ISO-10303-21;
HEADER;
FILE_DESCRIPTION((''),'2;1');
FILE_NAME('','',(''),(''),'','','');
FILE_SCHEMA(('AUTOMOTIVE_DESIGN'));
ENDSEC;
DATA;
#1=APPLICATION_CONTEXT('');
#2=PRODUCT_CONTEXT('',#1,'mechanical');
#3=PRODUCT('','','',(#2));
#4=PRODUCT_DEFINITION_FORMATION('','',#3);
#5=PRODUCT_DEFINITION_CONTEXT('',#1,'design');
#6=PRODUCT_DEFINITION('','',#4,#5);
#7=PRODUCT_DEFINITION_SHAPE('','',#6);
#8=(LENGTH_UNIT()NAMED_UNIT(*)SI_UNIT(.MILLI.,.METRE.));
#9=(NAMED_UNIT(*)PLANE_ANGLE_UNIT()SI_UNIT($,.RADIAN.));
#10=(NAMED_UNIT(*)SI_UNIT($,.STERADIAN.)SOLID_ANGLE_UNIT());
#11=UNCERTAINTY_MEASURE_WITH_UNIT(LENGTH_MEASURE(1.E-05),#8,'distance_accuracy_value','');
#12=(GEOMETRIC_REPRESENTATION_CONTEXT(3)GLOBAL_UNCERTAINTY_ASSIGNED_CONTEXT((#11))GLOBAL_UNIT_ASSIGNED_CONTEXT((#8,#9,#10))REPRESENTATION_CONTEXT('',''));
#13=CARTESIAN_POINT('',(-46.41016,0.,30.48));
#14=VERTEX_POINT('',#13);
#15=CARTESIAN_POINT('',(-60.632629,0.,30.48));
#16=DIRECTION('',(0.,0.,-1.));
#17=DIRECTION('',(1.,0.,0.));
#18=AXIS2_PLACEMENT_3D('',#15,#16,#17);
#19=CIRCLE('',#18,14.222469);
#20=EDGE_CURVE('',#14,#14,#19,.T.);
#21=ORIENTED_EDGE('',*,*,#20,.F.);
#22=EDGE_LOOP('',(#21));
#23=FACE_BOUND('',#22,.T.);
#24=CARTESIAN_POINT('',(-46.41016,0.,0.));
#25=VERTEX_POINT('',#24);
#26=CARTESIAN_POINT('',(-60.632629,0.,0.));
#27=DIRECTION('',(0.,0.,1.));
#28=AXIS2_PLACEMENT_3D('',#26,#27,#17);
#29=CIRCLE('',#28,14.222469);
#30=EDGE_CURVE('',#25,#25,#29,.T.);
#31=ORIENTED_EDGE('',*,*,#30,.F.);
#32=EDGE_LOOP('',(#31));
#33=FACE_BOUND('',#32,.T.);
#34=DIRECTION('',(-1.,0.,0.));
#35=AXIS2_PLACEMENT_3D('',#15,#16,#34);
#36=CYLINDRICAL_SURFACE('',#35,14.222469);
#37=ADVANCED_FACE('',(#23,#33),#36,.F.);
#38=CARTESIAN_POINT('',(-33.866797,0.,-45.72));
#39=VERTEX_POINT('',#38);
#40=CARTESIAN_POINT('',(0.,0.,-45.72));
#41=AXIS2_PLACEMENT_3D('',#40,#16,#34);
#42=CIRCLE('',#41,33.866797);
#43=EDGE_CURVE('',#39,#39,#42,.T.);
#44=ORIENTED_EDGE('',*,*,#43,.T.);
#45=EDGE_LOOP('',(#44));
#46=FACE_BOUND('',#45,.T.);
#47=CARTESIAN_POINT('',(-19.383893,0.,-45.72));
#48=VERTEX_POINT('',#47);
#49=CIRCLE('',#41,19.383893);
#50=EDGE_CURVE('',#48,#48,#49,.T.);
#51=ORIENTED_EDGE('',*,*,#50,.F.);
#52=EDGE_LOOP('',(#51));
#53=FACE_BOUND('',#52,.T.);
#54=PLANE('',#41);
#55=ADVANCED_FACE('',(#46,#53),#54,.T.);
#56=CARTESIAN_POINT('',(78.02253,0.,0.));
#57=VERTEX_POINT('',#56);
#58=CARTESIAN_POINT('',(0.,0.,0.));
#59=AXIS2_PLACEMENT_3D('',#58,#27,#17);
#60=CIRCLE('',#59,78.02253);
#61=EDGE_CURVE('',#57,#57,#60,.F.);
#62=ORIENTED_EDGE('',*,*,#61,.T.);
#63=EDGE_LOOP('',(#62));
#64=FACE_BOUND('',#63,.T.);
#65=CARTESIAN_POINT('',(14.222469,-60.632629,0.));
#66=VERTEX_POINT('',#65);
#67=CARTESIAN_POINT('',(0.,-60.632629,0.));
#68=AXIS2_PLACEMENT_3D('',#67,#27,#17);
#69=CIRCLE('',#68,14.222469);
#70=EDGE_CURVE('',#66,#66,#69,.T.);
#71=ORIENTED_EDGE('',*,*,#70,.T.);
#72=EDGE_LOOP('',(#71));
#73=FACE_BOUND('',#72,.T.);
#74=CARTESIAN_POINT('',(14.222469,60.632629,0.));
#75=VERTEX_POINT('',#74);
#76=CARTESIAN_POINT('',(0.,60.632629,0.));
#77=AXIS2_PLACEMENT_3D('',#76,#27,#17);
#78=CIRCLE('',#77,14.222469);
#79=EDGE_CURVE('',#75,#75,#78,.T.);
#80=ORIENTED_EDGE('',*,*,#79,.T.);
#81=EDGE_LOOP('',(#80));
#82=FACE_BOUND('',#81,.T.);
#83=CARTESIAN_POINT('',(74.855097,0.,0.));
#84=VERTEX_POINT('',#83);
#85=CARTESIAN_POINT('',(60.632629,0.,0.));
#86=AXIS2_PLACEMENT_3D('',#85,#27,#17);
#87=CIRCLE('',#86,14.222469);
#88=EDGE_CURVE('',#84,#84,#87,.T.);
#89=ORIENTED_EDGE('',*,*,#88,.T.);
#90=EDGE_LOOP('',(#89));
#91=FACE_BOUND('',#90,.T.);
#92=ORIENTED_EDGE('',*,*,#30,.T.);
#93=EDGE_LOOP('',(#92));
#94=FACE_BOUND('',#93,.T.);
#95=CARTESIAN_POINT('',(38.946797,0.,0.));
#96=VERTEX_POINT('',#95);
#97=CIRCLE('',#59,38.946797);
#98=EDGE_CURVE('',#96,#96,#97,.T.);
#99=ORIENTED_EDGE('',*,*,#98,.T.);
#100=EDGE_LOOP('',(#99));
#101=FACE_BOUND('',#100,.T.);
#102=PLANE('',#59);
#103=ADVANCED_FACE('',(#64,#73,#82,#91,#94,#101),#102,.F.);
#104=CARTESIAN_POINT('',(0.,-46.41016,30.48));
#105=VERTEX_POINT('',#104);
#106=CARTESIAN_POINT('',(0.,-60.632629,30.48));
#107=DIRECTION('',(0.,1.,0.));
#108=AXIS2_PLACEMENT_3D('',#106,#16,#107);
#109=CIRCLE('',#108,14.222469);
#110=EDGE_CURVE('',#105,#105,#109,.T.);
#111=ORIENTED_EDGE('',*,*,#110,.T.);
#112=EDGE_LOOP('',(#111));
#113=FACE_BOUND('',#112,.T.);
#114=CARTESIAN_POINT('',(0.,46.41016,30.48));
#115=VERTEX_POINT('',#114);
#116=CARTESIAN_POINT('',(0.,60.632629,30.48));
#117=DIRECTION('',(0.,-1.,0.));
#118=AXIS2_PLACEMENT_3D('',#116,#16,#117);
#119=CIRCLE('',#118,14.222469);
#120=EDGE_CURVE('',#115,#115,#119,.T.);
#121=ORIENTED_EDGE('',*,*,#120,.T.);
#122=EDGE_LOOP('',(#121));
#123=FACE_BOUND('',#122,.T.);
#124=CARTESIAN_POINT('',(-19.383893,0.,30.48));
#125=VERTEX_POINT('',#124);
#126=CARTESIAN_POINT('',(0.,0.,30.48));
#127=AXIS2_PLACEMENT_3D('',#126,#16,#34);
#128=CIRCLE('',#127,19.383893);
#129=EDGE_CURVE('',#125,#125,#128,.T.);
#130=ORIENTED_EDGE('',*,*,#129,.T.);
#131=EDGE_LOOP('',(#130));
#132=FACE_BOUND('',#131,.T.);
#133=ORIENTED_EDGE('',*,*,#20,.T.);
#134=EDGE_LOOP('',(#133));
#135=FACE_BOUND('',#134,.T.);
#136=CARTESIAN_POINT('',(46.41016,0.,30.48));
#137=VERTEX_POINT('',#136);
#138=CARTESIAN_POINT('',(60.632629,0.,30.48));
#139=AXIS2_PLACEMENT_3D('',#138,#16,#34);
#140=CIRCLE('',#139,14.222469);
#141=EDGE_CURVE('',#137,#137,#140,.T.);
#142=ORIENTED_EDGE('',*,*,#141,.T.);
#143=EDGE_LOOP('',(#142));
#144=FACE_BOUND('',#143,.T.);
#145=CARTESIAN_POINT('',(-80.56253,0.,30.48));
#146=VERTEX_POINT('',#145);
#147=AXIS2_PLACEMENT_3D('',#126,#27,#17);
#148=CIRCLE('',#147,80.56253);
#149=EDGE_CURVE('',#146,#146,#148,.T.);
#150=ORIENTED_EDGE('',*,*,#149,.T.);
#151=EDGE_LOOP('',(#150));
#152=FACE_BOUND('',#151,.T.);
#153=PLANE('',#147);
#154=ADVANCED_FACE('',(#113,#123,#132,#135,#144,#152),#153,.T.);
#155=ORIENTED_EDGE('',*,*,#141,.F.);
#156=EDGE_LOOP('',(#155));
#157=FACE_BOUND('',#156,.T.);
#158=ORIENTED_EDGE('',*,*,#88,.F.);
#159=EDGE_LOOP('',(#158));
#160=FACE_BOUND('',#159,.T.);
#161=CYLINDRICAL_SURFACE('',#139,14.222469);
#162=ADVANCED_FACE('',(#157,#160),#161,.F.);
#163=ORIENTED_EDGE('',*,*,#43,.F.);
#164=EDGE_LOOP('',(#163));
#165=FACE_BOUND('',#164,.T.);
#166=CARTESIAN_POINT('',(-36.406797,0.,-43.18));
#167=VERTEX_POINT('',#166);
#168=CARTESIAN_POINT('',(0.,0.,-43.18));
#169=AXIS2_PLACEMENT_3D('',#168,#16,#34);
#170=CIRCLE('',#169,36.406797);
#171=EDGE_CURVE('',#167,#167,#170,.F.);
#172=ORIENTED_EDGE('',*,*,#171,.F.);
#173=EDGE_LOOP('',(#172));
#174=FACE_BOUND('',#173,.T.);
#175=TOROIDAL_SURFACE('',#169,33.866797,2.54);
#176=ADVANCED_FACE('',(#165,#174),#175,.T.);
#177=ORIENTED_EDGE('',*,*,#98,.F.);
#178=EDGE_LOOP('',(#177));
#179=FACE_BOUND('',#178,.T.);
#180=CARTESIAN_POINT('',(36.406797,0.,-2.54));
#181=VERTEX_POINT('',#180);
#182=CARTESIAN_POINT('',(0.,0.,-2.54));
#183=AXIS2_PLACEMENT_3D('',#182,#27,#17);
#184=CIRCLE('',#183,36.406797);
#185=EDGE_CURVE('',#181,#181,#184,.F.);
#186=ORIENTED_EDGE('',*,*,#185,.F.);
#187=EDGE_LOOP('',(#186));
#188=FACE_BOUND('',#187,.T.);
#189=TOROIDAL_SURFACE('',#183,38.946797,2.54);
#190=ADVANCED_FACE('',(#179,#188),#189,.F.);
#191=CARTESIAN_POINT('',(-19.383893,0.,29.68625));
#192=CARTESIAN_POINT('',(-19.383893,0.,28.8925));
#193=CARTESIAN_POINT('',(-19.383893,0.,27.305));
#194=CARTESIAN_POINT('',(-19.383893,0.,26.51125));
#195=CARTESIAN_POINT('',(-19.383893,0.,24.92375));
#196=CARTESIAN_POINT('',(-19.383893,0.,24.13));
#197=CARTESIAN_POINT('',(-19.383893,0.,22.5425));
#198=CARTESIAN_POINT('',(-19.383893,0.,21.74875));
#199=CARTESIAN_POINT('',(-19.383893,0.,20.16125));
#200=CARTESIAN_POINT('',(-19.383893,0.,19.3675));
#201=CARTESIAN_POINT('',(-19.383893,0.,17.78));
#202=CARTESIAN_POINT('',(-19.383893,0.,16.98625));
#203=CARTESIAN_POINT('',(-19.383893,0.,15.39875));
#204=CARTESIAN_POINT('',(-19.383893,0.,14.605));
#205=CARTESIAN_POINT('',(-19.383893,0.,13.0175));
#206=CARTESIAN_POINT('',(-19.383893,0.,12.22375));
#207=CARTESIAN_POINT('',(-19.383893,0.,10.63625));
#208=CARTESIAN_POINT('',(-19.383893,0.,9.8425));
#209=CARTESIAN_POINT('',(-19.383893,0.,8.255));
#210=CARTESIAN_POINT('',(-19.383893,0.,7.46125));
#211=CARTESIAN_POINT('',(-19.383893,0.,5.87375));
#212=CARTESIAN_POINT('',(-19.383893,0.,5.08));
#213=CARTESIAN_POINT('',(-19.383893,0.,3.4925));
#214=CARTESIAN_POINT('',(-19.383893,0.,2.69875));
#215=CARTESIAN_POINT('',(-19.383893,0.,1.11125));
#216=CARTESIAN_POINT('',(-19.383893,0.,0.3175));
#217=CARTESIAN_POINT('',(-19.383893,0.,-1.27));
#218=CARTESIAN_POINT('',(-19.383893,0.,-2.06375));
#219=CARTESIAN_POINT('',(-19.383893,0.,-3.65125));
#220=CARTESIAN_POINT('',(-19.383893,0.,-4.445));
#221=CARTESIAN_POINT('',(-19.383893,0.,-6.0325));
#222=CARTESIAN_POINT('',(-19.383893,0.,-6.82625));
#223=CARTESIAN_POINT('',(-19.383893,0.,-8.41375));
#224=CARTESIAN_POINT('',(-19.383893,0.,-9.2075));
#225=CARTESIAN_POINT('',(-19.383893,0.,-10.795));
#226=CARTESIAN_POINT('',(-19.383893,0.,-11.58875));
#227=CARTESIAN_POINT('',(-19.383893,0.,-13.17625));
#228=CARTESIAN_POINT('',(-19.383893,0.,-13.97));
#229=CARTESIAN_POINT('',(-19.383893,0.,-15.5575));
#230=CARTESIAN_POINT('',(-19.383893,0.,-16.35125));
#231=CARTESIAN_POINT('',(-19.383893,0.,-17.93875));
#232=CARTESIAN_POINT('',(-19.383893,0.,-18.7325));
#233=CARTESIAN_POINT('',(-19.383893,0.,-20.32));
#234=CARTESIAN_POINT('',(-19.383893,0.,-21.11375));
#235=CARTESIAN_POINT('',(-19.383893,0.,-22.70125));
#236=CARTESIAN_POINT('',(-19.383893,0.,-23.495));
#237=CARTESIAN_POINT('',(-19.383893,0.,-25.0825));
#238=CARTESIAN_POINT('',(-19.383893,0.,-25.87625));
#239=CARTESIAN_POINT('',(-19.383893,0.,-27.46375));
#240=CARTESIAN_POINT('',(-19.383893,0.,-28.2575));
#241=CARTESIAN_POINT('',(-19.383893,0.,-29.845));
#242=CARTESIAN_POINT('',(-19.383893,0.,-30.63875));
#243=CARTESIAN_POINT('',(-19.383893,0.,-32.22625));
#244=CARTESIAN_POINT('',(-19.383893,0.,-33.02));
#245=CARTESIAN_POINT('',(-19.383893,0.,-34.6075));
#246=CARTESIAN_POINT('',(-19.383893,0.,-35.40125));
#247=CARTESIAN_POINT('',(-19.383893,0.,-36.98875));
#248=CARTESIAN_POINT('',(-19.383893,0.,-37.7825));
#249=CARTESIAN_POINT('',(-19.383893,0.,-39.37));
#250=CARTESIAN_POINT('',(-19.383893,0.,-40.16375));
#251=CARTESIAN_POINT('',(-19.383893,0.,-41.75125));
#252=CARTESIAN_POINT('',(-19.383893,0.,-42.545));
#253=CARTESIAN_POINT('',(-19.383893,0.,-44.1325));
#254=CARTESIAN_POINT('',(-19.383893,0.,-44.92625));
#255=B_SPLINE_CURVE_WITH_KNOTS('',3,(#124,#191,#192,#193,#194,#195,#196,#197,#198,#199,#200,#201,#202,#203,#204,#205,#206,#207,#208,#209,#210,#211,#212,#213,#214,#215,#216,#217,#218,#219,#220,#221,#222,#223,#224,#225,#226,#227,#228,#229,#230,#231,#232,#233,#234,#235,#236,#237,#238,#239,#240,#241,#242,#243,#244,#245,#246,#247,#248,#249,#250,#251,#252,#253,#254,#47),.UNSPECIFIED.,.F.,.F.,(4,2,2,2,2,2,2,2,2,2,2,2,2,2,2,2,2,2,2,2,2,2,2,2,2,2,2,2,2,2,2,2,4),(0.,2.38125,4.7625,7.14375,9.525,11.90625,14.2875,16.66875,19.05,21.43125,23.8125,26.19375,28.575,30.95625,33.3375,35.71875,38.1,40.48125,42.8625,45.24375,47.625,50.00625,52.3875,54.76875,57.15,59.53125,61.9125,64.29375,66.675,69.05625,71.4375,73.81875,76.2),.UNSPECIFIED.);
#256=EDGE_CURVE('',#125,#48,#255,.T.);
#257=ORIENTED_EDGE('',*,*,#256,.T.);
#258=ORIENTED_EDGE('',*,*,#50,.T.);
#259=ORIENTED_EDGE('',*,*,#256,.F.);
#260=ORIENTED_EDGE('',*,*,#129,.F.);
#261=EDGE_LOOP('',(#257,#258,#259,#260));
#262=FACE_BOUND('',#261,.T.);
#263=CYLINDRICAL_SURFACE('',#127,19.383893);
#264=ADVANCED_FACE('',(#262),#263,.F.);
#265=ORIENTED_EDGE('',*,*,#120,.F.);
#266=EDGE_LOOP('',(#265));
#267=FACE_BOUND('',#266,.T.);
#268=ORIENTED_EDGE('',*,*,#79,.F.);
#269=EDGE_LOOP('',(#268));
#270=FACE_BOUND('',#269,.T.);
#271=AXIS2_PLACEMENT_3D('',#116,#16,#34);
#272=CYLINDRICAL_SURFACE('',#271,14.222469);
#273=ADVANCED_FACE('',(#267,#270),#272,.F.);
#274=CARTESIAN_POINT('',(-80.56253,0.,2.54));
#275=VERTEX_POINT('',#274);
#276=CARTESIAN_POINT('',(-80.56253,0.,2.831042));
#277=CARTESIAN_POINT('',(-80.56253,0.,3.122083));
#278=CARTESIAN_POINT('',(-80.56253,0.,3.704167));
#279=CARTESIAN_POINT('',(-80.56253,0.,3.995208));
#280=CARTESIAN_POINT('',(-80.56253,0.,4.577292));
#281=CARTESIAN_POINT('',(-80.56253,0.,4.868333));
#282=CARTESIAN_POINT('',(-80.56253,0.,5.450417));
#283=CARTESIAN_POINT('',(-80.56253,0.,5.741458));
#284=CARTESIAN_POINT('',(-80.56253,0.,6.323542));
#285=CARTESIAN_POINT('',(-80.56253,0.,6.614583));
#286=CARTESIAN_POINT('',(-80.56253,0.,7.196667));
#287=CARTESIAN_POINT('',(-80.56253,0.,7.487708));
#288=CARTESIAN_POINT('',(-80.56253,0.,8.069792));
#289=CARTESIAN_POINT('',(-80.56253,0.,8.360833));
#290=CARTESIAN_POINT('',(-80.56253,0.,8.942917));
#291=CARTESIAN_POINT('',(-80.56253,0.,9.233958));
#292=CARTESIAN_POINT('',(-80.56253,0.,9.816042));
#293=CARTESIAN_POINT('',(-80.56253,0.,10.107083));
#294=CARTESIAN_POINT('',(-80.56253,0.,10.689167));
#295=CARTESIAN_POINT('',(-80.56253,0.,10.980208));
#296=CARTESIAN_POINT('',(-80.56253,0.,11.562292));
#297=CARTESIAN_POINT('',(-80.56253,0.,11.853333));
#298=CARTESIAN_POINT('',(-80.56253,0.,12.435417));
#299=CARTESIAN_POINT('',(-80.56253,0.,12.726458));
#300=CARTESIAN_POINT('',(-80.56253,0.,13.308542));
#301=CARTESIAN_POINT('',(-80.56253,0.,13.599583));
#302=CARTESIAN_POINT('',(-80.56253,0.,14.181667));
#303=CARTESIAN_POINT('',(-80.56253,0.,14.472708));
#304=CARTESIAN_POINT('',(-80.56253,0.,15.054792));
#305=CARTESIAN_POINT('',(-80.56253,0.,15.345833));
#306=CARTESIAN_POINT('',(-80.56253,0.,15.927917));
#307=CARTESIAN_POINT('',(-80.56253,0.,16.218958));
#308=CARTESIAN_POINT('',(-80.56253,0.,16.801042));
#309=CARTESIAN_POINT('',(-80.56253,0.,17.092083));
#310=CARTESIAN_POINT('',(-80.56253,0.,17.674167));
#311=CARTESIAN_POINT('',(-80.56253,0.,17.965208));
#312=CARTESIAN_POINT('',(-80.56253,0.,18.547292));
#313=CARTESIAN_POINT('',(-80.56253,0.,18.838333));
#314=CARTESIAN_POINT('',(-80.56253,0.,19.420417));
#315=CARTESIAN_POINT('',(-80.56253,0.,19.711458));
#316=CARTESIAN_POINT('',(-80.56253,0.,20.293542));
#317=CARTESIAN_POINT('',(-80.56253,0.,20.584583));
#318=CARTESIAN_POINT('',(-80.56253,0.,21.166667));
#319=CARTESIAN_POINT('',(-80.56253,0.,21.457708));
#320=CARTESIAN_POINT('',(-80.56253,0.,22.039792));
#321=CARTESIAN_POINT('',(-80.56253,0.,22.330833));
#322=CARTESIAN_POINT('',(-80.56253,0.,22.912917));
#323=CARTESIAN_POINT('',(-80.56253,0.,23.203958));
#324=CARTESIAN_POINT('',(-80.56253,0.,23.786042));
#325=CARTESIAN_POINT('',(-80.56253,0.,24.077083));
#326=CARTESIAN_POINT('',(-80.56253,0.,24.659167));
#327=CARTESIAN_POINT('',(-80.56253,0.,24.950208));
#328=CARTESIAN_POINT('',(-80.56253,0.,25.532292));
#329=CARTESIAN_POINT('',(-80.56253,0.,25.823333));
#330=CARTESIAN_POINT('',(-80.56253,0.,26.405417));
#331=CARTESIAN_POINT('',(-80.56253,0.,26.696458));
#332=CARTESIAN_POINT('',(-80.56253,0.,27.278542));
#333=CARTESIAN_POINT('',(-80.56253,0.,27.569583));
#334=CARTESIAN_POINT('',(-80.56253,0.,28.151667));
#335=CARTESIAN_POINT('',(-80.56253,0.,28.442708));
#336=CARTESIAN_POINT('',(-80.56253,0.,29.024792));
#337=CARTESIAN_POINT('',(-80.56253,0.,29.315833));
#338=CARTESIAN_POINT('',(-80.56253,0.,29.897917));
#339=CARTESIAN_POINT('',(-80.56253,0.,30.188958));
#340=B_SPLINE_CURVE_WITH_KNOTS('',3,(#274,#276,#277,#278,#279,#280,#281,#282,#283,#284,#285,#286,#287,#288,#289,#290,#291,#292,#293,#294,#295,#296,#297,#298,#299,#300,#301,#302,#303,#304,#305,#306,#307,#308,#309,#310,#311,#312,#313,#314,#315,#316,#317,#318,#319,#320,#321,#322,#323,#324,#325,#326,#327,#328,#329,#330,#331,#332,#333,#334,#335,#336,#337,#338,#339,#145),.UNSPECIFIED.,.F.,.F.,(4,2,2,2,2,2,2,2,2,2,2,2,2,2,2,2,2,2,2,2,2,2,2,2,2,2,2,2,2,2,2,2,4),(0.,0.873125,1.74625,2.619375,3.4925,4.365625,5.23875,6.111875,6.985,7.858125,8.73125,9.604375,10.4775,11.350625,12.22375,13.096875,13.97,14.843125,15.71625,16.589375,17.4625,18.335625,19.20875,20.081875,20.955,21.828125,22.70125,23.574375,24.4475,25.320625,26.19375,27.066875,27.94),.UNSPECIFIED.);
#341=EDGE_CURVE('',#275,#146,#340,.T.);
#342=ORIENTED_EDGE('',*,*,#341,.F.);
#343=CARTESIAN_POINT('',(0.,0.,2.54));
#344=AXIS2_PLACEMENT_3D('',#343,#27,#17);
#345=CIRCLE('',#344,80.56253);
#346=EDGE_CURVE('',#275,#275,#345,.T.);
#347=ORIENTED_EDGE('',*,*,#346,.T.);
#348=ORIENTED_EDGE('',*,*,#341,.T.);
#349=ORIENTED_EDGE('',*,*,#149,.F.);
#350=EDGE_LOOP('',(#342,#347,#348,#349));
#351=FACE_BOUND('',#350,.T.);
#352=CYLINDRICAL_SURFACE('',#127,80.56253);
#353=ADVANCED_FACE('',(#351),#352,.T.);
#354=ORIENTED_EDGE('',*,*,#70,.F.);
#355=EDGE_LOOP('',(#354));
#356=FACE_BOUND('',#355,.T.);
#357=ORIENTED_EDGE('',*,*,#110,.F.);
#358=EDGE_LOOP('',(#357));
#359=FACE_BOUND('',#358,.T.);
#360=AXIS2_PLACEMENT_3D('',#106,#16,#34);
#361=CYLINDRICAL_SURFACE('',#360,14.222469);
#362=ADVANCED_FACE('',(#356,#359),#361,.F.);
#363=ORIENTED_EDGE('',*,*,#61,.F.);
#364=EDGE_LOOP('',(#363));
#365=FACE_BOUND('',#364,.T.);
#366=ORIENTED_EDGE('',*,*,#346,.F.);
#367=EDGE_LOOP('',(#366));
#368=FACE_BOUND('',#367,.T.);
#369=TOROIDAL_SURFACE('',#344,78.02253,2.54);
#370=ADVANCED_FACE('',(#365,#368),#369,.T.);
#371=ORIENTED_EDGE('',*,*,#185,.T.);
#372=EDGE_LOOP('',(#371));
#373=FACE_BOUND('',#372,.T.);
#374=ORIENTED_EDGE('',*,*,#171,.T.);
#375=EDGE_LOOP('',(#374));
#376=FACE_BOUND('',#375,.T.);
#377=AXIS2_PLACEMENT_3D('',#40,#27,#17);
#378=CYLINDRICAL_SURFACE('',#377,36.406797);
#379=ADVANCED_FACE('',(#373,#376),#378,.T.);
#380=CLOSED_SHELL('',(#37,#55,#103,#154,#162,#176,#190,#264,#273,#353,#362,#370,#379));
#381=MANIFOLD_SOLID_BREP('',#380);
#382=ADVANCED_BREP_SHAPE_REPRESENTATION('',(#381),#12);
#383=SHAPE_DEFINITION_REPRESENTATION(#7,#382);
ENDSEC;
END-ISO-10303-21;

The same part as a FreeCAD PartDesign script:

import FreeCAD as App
import Part
import Sketcher
from FreeCAD import Vector
Q = App.Units.Quantity


def edges_at(feature, points):
    """Names of the edges that pass closest to the given points."""
    edges = feature.Shape.Edges
    near = lambda p: min(range(len(edges)), key=lambda i: edges[i].distToShape(Part.Vertex(*p))[0])
    return sorted({f"Edge{near(p) + 1}" for p in points})

doc = App.newDocument("Part")
params = doc.addObject("Spreadsheet::Sheet", "Params")
for row, (alias, value) in enumerate([
    ("pad1_length", "1.2 in"),
    ("pad2_length", "1.8 in"),
    ("fillet_radius", "0.1 in"),
    ("fillet2_radius", "0.1 in"),
], start=1):
    params.set(f"A{row}", alias)
    params.set(f"B{row}", "=" + value)
    params.setAlias(f"B{row}", alias)

body = doc.addObject("PartDesign::Body", "Body")

sketch1 = body.newObject("Sketcher::SketchObject", "Sketch")
sketch1.AttachmentSupport = (doc.getObject("XY_Plane"), [""])
sketch1.MapMode = "FlatFace"
sketch1.addGeometry(Part.Circle(Vector(0, 0, 0), Vector(0, 0, 1), 81), False)
sketch1.addConstraint([
    Sketcher.Constraint("Coincident", 0, 3, -1, 1),
    Sketcher.Constraint("Diameter", 0, Q("161.125059 mm")),
])
pad1 = body.newObject("PartDesign::Pad", "Pad")
pad1.Profile = sketch1
pad1.setExpression("Length", "Params.pad1_length")

sketch2 = body.newObject("Sketcher::SketchObject", "Sketch001")
sketch2.AttachmentSupport = (doc.getObject("XY_Plane"), [""])
sketch2.MapMode = "FlatFace"
sketch2.addGeometry(Part.Circle(Vector(0, 0, 0), Vector(0, 0, 1), 36), False)
sketch2.addConstraint([
    Sketcher.Constraint("Coincident", 0, 3, -1, 1),
    Sketcher.Constraint("Diameter", 0, Q("72.813595 mm")),
])
pad2 = body.newObject("PartDesign::Pad", "Pad001")
pad2.Profile = sketch2
pad2.setExpression("Length", "Params.pad2_length")
pad2.Reversed = True

sketch3 = body.newObject("Sketcher::SketchObject", "Sketch002")
sketch3.AttachmentSupport = (doc.getObject("XY_Plane"), [""])
sketch3.MapMode = "FlatFace"
sketch3.AttachmentOffset = App.Placement(Vector(0, 0, -1.8 * 25.4), App.Rotation())
sketch3.addGeometry(Part.Circle(Vector(0, 0, 0), Vector(0, 0, 1), 19), False)
sketch3.addConstraint([
    Sketcher.Constraint("Coincident", 0, 3, -1, 1),
    Sketcher.Constraint("Diameter", 0, Q("38.767787 mm")),
])
pocket1 = body.newObject("PartDesign::Pocket", "Pocket")
pocket1.Profile = sketch3
pocket1.Type = "ThroughAll"
pocket1.Reversed = True

sketch4 = body.newObject("Sketcher::SketchObject", "Sketch003")
sketch4.AttachmentSupport = (doc.getObject("XY_Plane"), [""])
sketch4.MapMode = "FlatFace"
sketch4.AttachmentOffset = App.Placement(Vector(0, 0, -0.1 * 25.4), App.Rotation())
sketch4.addGeometry(Part.Circle(Vector(61, 0, 0), Vector(0, 0, 1), 14), False)
sketch4.addConstraint([
    Sketcher.Constraint("PointOnObject", 0, 3, -1),
    Sketcher.Constraint("Diameter", 0, Q("28.444937 mm")),
    Sketcher.Constraint("DistanceX", -1, 1, 0, 3, Q("60.632629 mm")),
])
pocket2 = body.newObject("PartDesign::Pocket", "Pocket001")
pocket2.Profile = sketch4
pocket2.Type = "ThroughAll"
pocket2.Reversed = True
doc.recompute()

polarpattern = body.newObject("PartDesign::PolarPattern", "PolarPattern")
polarpattern.Originals = [pocket2]
polarpattern.Axis = (doc.getObject("Z_Axis"), [""])
polarpattern.Angle = 360
polarpattern.Occurrences = 4
body.Tip = polarpattern
doc.recompute()

fillet = body.newObject("PartDesign::Fillet", "Fillet")
fillet.Base = (polarpattern, edges_at(polarpattern, [(-36.407, 0, 0), (-36.407, 0, -45.72)]))
fillet.setExpression("Radius", "Params.fillet_radius")
doc.recompute()

fillet2 = body.newObject("PartDesign::Fillet", "Fillet001")
fillet2.Base = (fillet, edges_at(fillet, [(80.563, 0, 0)]))
fillet2.setExpression("Radius", "Params.fillet2_radius")

doc.recompute()
